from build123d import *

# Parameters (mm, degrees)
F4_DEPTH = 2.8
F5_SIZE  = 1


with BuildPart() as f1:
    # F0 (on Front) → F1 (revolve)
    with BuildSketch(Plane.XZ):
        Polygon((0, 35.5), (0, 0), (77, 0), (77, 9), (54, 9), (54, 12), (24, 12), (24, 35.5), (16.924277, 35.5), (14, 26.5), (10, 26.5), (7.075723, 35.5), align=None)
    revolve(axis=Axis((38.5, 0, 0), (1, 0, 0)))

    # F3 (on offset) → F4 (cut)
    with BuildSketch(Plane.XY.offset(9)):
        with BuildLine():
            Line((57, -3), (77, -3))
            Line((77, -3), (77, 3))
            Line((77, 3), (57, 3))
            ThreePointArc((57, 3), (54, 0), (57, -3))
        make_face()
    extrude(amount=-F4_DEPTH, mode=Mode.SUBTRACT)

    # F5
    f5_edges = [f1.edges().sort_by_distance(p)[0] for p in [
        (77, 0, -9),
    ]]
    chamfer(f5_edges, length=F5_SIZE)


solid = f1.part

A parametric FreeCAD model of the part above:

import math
import FreeCAD as App
import Part
import Sketcher

V = App.Vector
Q = App.Units.Quantity


def edges_at(feature, points):
    """Names of the edges that pass closest to the given points."""
    edges = feature.Shape.Edges
    near = lambda p: min(range(len(edges)), key=lambda i: edges[i].distToShape(Part.Vertex(*p))[0])
    return sorted({f"Edge{near(p) + 1}" for p in points})


def add_polygon(sketch, points):
    """Adds a closed chain of lines whose ends are joined by coincident constraints."""
    first, n = sketch.GeometryCount, len(points)
    for a, b in zip(points, points[1:] + points[:1]):
        sketch.addGeometry(Part.LineSegment(App.Vector(*a, 0), App.Vector(*b, 0)), False)
    for i in range(n):
        sketch.addConstraint(Sketcher.Constraint("Coincident", first + i, 2, first + (i + 1) % n, 1))

doc = App.newDocument("Part")
params = doc.addObject("Spreadsheet::Sheet", "Params")
for row, (alias, value) in enumerate([
    ("sketch1_width", "77 mm"),
    ("sketch1_width2", "23 mm"),
    ("sketch1_width3", "30 mm"),
    ("sketch1_width4", "4 mm"),
    ("sketch1_height", "9 mm"),
    ("revolution_angle", "360 deg"),
    ("sketch2_radius", "3 mm"),
    ("sketch2_width", "20 mm"),
    ("pocket1_length", "2.8 mm"),
    ("chamfer_size", "1 mm"),
], start=1):
    params.set(f"A{row}", alias)
    params.set(f"B{row}", "=" + value)
    params.setAlias(f"B{row}", alias)

body = doc.addObject("PartDesign::Body", "Body")

sketch1 = body.newObject("Sketcher::SketchObject", "Sketch")
sketch1.AttachmentSupport = (doc.getObject("XZ_Plane"), [""])
sketch1.MapMode = "FlatFace"
add_polygon(sketch1, [(0, 35.5), (0, 0), (77, 0), (77, 9), (54, 9), (54, 12), (24, 12), (24, 35.5), (16.924277, 35.5), (14, 26.5), (10, 26.5), (7.075723, 35.5)])
sketch1.addConstraint([
    Sketcher.Constraint("Vertical", 0),
    Sketcher.Constraint("Horizontal", 1),
    Sketcher.Constraint("Vertical", 2),
    Sketcher.Constraint("Horizontal", 3),
    Sketcher.Constraint("Vertical", 4),
    Sketcher.Constraint("Horizontal", 5),
    Sketcher.Constraint("Vertical", 6),
    Sketcher.Constraint("Horizontal", 7),
    Sketcher.Constraint("Horizontal", 9),
    Sketcher.Constraint("Horizontal", 11),
    Sketcher.Constraint("Coincident", 0, 2, -1, 1),
    Sketcher.Constraint("Horizontal", 7, 2, 10, 2),
    Sketcher.Constraint("Equal", 7, 11),
    Sketcher.Constraint("Equal", 8, 10),
    Sketcher.Constraint("DistanceX", 1, 1, 1, 2, Q("77 mm")),
    Sketcher.Constraint("DistanceX", 3, 2, 3, 1, Q("23 mm")),
    Sketcher.Constraint("DistanceX", 5, 2, 5, 1, Q("30 mm")),
    Sketcher.Constraint("DistanceX", 9, 2, 9, 1, Q("4 mm")),
    Sketcher.Constraint("DistanceY", 2, 1, 2, 2, Q("9 mm")),
    Sketcher.Constraint("DistanceY", 4, 1, 4, 2, Q("3 mm")),
    Sketcher.Constraint("Angle", 8, Q("-107.999998 deg")),
    Sketcher.Constraint("DistanceY", 0, 2, 0, 1, Q("35.5 mm")),
    Sketcher.Constraint("DistanceY", 8, 2, 7, 2, Q("9 mm")),
])
sketch1.setExpression("Constraints[26]", "Params.sketch1_width")
sketch1.setExpression("Constraints[27]", "Params.sketch1_width2")
sketch1.setExpression("Constraints[28]", "Params.sketch1_width3")
sketch1.setExpression("Constraints[29]", "Params.sketch1_width4")
sketch1.setExpression("Constraints[30]", "Params.sketch1_height")
revolution = body.newObject("PartDesign::Revolution", "Revolution")
revolution.Profile = sketch1
revolution.ReferenceAxis = (sketch1, ["H_Axis"])
revolution.setExpression("Angle", "Params.revolution_angle")

sketch2 = body.newObject("Sketcher::SketchObject", "Sketch001")
sketch2.AttachmentSupport = (doc.getObject("XY_Plane"), [""])
sketch2.MapMode = "FlatFace"
sketch2.AttachmentOffset = App.Placement(V(0, 0, 9), App.Rotation())
sketch2.addGeometry([
    Part.LineSegment(V(57, -3, 0), V(77, -3, 0)),
    Part.LineSegment(V(77, -3, 0), V(77, 3, 0)),
    Part.LineSegment(V(77, 3, 0), V(57, 3, 0)),
    Part.ArcOfCircle(Part.Circle(V(57, 0, 0), V(0, 0, 1), 3), math.radians(90), math.radians(270)),
], False)
sketch2.addConstraint([
    Sketcher.Constraint("Coincident", 0, 2, 1, 1),
    Sketcher.Constraint("Coincident", 1, 2, 2, 1),
    Sketcher.Constraint("Tangent", 2, 2, 3, 1),
    Sketcher.Constraint("Tangent", 3, 2, 0, 1),
    Sketcher.Constraint("Horizontal", 0),
    Sketcher.Constraint("Vertical", 1),
    Sketcher.Constraint("Horizontal", 2),
    Sketcher.Constraint("PointOnObject", 3, 3, -1),
    Sketcher.Constraint("Radius", 3, Q("3 mm")),
    Sketcher.Constraint("DistanceX", 0, 1, 0, 2, Q("20 mm")),
    Sketcher.Constraint("DistanceX", -1, 1, 3, 3, Q("57 mm")),
])
sketch2.setExpression("Constraints[8]", "Params.sketch2_radius")
sketch2.setExpression("Constraints[9]", "Params.sketch2_width")
pocket1 = body.newObject("PartDesign::Pocket", "Pocket")
pocket1.Profile = sketch2
pocket1.setExpression("Length", "Params.pocket1_length")
doc.recompute()

chamfer = body.newObject("PartDesign::Chamfer", "Chamfer")
chamfer.Base = (pocket1, edges_at(pocket1, [(77, 0, -9)]))
chamfer.setExpression("Size", "Params.chamfer_size")

doc.recompute()
